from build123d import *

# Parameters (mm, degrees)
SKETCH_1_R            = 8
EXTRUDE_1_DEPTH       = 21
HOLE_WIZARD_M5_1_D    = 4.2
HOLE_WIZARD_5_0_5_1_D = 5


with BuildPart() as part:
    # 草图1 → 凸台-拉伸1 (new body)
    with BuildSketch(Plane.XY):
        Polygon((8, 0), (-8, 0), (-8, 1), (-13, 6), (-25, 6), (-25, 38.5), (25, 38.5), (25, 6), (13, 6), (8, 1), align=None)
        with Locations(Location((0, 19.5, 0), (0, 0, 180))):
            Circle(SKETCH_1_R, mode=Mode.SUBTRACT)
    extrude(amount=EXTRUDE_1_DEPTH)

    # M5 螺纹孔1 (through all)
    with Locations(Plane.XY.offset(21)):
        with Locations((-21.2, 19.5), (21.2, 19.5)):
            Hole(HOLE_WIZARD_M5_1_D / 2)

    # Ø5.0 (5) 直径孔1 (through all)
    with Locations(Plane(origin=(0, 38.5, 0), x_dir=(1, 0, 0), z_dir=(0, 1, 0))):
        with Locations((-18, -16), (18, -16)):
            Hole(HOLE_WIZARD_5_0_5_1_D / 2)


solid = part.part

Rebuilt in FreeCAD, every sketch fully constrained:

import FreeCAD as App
import Part
import Sketcher
from FreeCAD import Vector
Q = App.Units.Quantity


def add_polygon(sketch, points):
    """Adds a closed chain of lines whose ends are joined by coincident constraints."""
    first, n = sketch.GeometryCount, len(points)
    for a, b in zip(points, points[1:] + points[:1]):
        sketch.addGeometry(Part.LineSegment(App.Vector(*a, 0), App.Vector(*b, 0)), False)
    for i in range(n):
        sketch.addConstraint(Sketcher.Constraint("Coincident", first + i, 2, first + (i + 1) % n, 1))

doc = App.newDocument("Part")
body = doc.addObject("PartDesign::Body", "Body")

sketch1 = doc.addObject("Sketcher::SketchObject", "Sketch")
body.addObject(sketch1)
sketch1.AttachmentSupport = (doc.XY_Plane, [""])
sketch1.MapMode = "FlatFace"
add_polygon(sketch1, [(-8, 0), (8, 0), (8, 1), (13, 6), (25, 6), (25, 38.5), (-25, 38.5), (-25, 6), (-13, 6), (-8, 1)])
sketch1.addGeometry(Part.Circle(Vector(0, 19.5, 0), Vector(0, 0, 1), 8), False)
sketch1.addConstraint([
    Sketcher.Constraint("Horizontal", 0),
    Sketcher.Constraint("Vertical", 1),
    Sketcher.Constraint("Horizontal", 3),
    Sketcher.Constraint("Vertical", 4),
    Sketcher.Constraint("Horizontal", 5),
    Sketcher.Constraint("Vertical", 6),
    Sketcher.Constraint("Horizontal", 7),
    Sketcher.Constraint("Vertical", 9),
    Sketcher.Constraint("Symmetric", 0, 2, 9, 2, -1, 1),
    Sketcher.Constraint("Symmetric", 3, 2, 6, 2, -2),
    Sketcher.Constraint("PointOnObject", 10, 3, -2),
    Sketcher.Constraint("Perpendicular", 2, 8),
    Sketcher.Constraint("Horizontal", 1, 2, 8, 2),
    Sketcher.Constraint("Equal", 3, 7),
    Sketcher.Constraint("Diameter", 10, Q("16 mm")),
    Sketcher.Constraint("DistanceX", 0, 1, 0, 2, Q("16 mm")),
    Sketcher.Constraint("DistanceX", 3, 1, 3, 2, Q("12 mm")),
    Sketcher.Constraint("DistanceX", 5, 2, 5, 1, Q("50 mm")),
    Sketcher.Constraint("DistanceY", 1, 1, 1, 2, Q("1 mm")),
    Sketcher.Constraint("DistanceY", 4, 1, 4, 2, Q("32.5 mm")),
    Sketcher.Constraint("DistanceY", 10, 3, 4, 2, Q("19 mm")),
])
pad1 = doc.addObject("PartDesign::Pad", "Pad")
body.addObject(pad1)
pad1.Profile = sketch1
pad1.Length = 21

sketch2 = doc.addObject("Sketcher::SketchObject", "Sketch001")
body.addObject(sketch2)
sketch2.AttachmentSupport = (doc.XY_Plane, [""])
sketch2.MapMode = "FlatFace"
sketch2.AttachmentOffset = App.Placement(Vector(0, 0, 21), App.Rotation())
sketch2.addGeometry([
    Part.Circle(Vector(-21.2, 19.5, 0), Vector(0, 0, 1), 2.1),
    Part.Circle(Vector(21.2, 19.5, 0), Vector(0, 0, 1), 2.1),
], False)
sketch2.addConstraint([
    Sketcher.Constraint("Equal", 0, 1),
    Sketcher.Constraint("Symmetric", 0, 3, 1, 3, -2),
    Sketcher.Constraint("Diameter", 0, Q("4.2 mm")),
    Sketcher.Constraint("DistanceX", 0, 3, -1, 1, Q("21.2 mm")),
    Sketcher.Constraint("DistanceY", -1, 1, 0, 3, Q("19.5 mm")),
])
doc.recompute()
hole = doc.addObject("PartDesign::Hole", "Hole")
body.addObject(hole)
hole.Profile = sketch2
hole.ThreadType = "None"
hole.Diameter = 4.2
hole.DepthType = "ThroughAll"

sketch3 = doc.addObject("Sketcher::SketchObject", "Sketch002")
body.addObject(sketch3)
sketch3.AttachmentSupport = (doc.XZ_Plane, [""])
sketch3.MapMode = "FlatFace"
sketch3.AttachmentOffset = App.Placement(Vector(0, 0, -38.5), App.Rotation())
sketch3.addGeometry([
    Part.Circle(Vector(-18, 16, 0), Vector(0, 0, 1), 2.5),
    Part.Circle(Vector(18, 16, 0), Vector(0, 0, 1), 2.5),
], False)
sketch3.addConstraint([
    Sketcher.Constraint("Equal", 0, 1),
    Sketcher.Constraint("Symmetric", 0, 3, 1, 3, -2),
    Sketcher.Constraint("Diameter", 0, Q("5 mm")),
    Sketcher.Constraint("DistanceX", 0, 3, -1, 1, Q("18 mm")),
    Sketcher.Constraint("DistanceY", -1, 1, 0, 3, Q("16 mm")),
])
doc.recompute()
hole2 = doc.addObject("PartDesign::Hole", "Hole001")
body.addObject(hole2)
hole2.Profile = sketch3
hole2.ThreadType = "None"
hole2.Diameter = 5
hole2.DepthType = "ThroughAll"
hole2.Reversed = True

doc.recompute()
